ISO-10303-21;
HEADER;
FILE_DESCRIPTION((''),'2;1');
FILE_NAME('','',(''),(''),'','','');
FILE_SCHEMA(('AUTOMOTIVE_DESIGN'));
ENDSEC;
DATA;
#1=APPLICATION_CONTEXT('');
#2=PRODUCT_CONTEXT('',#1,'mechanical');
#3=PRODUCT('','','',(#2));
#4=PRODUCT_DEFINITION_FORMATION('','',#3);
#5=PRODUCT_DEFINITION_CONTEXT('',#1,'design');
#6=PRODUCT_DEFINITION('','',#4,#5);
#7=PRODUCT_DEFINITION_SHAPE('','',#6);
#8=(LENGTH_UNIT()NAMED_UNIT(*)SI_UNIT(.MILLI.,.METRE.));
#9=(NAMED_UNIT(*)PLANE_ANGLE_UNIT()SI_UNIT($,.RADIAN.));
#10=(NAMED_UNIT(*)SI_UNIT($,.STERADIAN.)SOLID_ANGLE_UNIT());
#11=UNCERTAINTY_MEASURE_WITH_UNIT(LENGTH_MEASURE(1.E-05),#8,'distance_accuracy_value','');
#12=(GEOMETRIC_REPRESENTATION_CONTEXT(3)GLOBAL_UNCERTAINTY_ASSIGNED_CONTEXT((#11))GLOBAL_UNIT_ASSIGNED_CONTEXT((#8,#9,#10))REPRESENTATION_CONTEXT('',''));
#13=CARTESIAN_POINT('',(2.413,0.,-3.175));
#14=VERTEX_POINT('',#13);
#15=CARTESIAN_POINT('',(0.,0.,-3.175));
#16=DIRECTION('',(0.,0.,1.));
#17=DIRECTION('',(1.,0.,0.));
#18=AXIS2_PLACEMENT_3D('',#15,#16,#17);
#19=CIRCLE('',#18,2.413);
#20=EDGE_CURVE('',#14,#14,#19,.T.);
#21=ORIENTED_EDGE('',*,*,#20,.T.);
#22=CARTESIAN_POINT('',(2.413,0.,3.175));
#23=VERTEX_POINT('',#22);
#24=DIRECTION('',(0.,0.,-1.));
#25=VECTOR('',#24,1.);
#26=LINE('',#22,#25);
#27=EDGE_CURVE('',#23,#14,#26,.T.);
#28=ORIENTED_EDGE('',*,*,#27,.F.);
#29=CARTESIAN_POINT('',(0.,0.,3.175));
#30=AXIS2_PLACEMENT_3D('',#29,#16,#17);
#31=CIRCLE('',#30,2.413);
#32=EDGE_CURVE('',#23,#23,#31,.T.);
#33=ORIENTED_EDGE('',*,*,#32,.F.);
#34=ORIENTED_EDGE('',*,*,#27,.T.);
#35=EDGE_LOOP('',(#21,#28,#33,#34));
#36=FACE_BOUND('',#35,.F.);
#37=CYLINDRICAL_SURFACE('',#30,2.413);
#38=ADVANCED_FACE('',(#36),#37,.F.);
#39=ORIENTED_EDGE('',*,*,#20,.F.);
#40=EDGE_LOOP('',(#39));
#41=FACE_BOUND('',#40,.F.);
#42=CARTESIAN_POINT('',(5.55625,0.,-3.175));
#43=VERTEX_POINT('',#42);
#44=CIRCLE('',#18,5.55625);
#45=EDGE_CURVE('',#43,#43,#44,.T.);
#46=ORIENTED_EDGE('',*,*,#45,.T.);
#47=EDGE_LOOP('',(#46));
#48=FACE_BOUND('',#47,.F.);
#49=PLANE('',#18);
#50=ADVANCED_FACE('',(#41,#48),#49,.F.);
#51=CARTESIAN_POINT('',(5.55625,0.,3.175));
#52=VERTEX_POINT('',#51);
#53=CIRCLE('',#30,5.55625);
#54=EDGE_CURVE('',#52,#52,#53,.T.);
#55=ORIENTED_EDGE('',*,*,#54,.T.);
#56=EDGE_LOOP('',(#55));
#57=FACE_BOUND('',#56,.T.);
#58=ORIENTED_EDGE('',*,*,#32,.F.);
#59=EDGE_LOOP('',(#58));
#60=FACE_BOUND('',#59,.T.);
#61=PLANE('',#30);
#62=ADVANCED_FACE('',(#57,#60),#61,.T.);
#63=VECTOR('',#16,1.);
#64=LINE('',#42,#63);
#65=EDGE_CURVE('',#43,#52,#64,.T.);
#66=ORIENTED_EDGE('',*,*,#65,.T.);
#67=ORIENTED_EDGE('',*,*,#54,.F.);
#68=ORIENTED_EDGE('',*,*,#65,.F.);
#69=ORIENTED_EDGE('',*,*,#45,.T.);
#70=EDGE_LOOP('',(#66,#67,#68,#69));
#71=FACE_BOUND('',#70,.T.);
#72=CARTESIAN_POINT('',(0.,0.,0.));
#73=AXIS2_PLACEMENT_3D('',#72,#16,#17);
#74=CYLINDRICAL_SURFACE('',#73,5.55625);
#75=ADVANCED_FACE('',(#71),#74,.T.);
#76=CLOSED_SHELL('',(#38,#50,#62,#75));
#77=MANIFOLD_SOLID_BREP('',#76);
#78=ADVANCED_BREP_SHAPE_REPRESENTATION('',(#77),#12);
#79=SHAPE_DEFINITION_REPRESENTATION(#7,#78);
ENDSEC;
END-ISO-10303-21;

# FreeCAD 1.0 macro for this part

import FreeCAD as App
import Part
import Sketcher
from FreeCAD import Vector
Q = App.Units.Quantity

doc = App.newDocument("Part")
params = doc.addObject("Spreadsheet::Sheet", "Params")
for row, (alias, value) in enumerate([
    ("sketch1_diameter", "0.4375 in"),
    ("pad1_length", "0.25 in"),
    ("sketch2_diameter", "0.19 in"),
], start=1):
    params.set(f"A{row}", alias)
    params.set(f"B{row}", "=" + value)
    params.setAlias(f"B{row}", alias)

body = doc.addObject("PartDesign::Body", "Body")

# Sketch on XY plane
sketch1 = body.newObject("Sketcher::SketchObject", "Sketch")
sketch1.AttachmentSupport = (doc.getObject("XY_Plane"), [""])
sketch1.MapMode = "FlatFace"
sketch1.addGeometry(Part.Circle(Vector(0, 0, 0), Vector(0, 0, 1), 6), False)
sketch1.addConstraint([
    Sketcher.Constraint("Coincident", 0, 3, -1, 1),
    Sketcher.Constraint("Diameter", 0, Q("0.4375 in")),
])
sketch1.setExpression("Constraints[1]", "Params.sketch1_diameter")
pad1 = body.newObject("PartDesign::Pad", "Pad")
pad1.Profile = sketch1
pad1.setExpression("Length", "Params.pad1_length")
pad1.Midplane = True

# Sketch on XY plane
sketch2 = body.newObject("Sketcher::SketchObject", "Sketch001")
sketch2.AttachmentSupport = (doc.getObject("XY_Plane"), [""])
sketch2.MapMode = "FlatFace"
sketch2.AttachmentOffset = App.Placement(Vector(0, 0, 0.125 * 25.4), App.Rotation())
sketch2.addGeometry(Part.Circle(Vector(0, 0, 0), Vector(0, 0, 1), 2.4), False)
sketch2.addConstraint([
    Sketcher.Constraint("Coincident", 0, 3, -1, 1),
    Sketcher.Constraint("Diameter", 0, Q("0.19 in")),
])
sketch2.setExpression("Constraints[1]", "Params.sketch2_diameter")
pocket1 = body.newObject("PartDesign::Pocket", "Pocket")
pocket1.Profile = sketch2
pocket1.Type = "ThroughAll"

doc.recompute()
